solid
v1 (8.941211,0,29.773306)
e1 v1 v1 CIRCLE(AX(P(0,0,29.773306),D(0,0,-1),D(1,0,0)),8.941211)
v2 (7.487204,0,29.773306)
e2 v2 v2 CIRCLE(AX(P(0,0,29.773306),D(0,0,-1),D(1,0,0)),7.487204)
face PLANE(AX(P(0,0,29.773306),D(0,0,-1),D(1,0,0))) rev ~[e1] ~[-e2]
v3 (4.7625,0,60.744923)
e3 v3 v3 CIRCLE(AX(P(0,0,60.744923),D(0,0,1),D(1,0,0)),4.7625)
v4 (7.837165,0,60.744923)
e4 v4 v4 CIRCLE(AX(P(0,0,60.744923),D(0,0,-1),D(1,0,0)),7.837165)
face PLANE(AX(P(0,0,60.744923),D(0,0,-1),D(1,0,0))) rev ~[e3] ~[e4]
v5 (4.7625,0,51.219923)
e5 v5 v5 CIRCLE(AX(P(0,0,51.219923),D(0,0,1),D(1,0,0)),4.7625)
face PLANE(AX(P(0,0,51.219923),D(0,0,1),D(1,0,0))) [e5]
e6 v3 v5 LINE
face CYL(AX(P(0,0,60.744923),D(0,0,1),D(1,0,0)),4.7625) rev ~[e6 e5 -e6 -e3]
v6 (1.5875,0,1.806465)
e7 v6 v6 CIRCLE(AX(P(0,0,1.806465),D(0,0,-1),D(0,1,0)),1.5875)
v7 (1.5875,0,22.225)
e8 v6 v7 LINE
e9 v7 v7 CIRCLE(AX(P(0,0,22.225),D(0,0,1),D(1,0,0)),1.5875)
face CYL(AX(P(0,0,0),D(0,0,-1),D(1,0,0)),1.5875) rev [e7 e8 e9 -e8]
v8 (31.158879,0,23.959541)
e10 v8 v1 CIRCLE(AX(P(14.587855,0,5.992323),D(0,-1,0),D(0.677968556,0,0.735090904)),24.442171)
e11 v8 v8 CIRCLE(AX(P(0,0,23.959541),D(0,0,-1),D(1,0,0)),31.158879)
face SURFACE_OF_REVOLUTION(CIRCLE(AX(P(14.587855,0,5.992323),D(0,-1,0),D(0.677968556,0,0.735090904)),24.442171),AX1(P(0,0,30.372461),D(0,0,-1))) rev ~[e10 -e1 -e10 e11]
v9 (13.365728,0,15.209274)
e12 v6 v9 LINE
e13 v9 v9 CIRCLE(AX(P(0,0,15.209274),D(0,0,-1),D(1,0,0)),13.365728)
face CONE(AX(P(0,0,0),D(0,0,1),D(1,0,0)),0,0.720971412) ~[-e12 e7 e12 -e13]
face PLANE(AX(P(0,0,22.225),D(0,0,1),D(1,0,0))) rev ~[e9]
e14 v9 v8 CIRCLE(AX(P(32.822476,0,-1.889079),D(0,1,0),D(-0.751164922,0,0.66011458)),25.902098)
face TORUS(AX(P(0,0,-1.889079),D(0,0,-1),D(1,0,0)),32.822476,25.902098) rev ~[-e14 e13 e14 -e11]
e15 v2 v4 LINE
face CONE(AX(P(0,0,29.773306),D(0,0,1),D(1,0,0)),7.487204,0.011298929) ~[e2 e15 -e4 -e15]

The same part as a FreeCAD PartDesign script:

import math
import FreeCAD as App
import Part
import Sketcher

V = App.Vector
Q = App.Units.Quantity

doc = App.newDocument("Part")
params = doc.addObject("Spreadsheet::Sheet", "Params")
for row, (alias, value) in enumerate([
    ("revolution_angle", "360 deg"),
    ("sketch2_diameter", "0.375 in"),
    ("pocket1_length", "0.375 in"),
    ("sketch3_diameter", "0.125 in"),
    ("pocket2_length", "0.875 in"),
], start=1):
    params.set(f"A{row}", alias)
    params.set(f"B{row}", "=" + value)
    params.setAlias(f"B{row}", alias)

body = doc.addObject("PartDesign::Body", "Body")

# Sketch on XZ plane
sketch1 = body.newObject("Sketcher::SketchObject", "Sketch")
sketch1.AttachmentSupport = (doc.getObject("XZ_Plane"), [""])
sketch1.MapMode = "FlatFace"
sketch1.addGeometry([
    Part.LineSegment(V(0, 60.7, 0), V(0, 0, 0)),  # 0
    Part.LineSegment(V(0, 0, 0), V(13.4, 15.2, 0)),  # 1
    Part.ArcOfCircle(Part.Circle(V(32.8, -1.9, 0), V(0, 0, 1), 25.9), math.radians(94), math.radians(139)),  # 2
    Part.ArcOfCircle(Part.Circle(V(14.6, 6, 0), V(0, 0, 1), 24.4), math.radians(47), math.radians(103)),  # 3
    Part.LineSegment(V(8.9, 29.8, 0), V(7.5, 29.8, 0)),  # 4
    Part.LineSegment(V(7.5, 29.8, 0), V(7.8, 60.7, 0)),  # 5
    Part.LineSegment(V(7.8, 60.7, 0), V(0, 60.7, 0)),  # 6
], False)
sketch1.addConstraint([
    Sketcher.Constraint("Coincident", 0, 2, 1, 1),
    Sketcher.Constraint("Tangent", 1, 2, 2, 2),
    Sketcher.Constraint("Coincident", 2, 1, 3, 1),
    Sketcher.Constraint("Coincident", 3, 2, 4, 1),
    Sketcher.Constraint("Coincident", 4, 2, 5, 1),
    Sketcher.Constraint("Coincident", 5, 2, 6, 1),
    Sketcher.Constraint("Coincident", 6, 2, 0, 1),
    Sketcher.Constraint("Vertical", 0),
    Sketcher.Constraint("Horizontal", 4),
    Sketcher.Constraint("Horizontal", 6),
    Sketcher.Constraint("Coincident", 0, 2, -1, 1),
    Sketcher.Constraint("Radius", 2, 25.902098),
    Sketcher.Constraint("Radius", 3, 24.442171),
    Sketcher.Constraint("DistanceY", 3, 3, 5, 2, 54.7526),
    Sketcher.Constraint("DistanceX", 4, 2, 4, 1, 1.454007),
    Sketcher.Constraint("DistanceX", 6, 2, 6, 1, 7.837165),
    Sketcher.Constraint("DistanceY", 0, 2, 0, 1, 60.744923),
    Sketcher.Constraint("DistanceY", 2, 3, -1, 1, 1.889079),
    Sketcher.Constraint("DistanceX", -1, 1, 1, 2, 13.365728),
    Sketcher.Constraint("DistanceX", -1, 1, 2, 1, 31.158879),
    Sketcher.Constraint("DistanceX", -1, 1, 3, 2, 8.941211),
])
revolution = body.newObject("PartDesign::Revolution", "Revolution")
revolution.Profile = sketch1
revolution.ReferenceAxis = (sketch1, ["V_Axis"])
revolution.setExpression("Angle", "Params.revolution_angle")

# Sketch on XY plane
sketch2 = body.newObject("Sketcher::SketchObject", "Sketch001")
sketch2.AttachmentSupport = (doc.getObject("XY_Plane"), [""])
sketch2.MapMode = "FlatFace"
sketch2.AttachmentOffset = App.Placement(V(0, 0, 60.744923), App.Rotation())
sketch2.addGeometry(Part.Circle(V(0, 0, 0), V(0, 0, 1), 4.8), False)
sketch2.addConstraint([
    Sketcher.Constraint("Coincident", 0, 3, -1, 1),
    Sketcher.Constraint("Diameter", 0, Q("0.375 in")),
])
sketch2.setExpression("Constraints[1]", "Params.sketch2_diameter")
pocket1 = body.newObject("PartDesign::Pocket", "Pocket")
pocket1.Profile = sketch2
pocket1.setExpression("Length", "Params.pocket1_length")

# Sketch on XY plane
sketch3 = body.newObject("Sketcher::SketchObject", "Sketch002")
sketch3.AttachmentSupport = (doc.getObject("XY_Plane"), [""])
sketch3.MapMode = "FlatFace"
sketch3.addGeometry(Part.Circle(V(0, 0, 0), V(0, 0, 1), 1.6), False)
sketch3.addConstraint([
    Sketcher.Constraint("Coincident", 0, 3, -1, 1),
    Sketcher.Constraint("Diameter", 0, Q("0.125 in")),
])
sketch3.setExpression("Constraints[1]", "Params.sketch3_diameter")
pocket2 = body.newObject("PartDesign::Pocket", "Pocket001")
pocket2.Profile = sketch3
pocket2.setExpression("Length", "Params.pocket2_length")
pocket2.Reversed = True

doc.recompute()
